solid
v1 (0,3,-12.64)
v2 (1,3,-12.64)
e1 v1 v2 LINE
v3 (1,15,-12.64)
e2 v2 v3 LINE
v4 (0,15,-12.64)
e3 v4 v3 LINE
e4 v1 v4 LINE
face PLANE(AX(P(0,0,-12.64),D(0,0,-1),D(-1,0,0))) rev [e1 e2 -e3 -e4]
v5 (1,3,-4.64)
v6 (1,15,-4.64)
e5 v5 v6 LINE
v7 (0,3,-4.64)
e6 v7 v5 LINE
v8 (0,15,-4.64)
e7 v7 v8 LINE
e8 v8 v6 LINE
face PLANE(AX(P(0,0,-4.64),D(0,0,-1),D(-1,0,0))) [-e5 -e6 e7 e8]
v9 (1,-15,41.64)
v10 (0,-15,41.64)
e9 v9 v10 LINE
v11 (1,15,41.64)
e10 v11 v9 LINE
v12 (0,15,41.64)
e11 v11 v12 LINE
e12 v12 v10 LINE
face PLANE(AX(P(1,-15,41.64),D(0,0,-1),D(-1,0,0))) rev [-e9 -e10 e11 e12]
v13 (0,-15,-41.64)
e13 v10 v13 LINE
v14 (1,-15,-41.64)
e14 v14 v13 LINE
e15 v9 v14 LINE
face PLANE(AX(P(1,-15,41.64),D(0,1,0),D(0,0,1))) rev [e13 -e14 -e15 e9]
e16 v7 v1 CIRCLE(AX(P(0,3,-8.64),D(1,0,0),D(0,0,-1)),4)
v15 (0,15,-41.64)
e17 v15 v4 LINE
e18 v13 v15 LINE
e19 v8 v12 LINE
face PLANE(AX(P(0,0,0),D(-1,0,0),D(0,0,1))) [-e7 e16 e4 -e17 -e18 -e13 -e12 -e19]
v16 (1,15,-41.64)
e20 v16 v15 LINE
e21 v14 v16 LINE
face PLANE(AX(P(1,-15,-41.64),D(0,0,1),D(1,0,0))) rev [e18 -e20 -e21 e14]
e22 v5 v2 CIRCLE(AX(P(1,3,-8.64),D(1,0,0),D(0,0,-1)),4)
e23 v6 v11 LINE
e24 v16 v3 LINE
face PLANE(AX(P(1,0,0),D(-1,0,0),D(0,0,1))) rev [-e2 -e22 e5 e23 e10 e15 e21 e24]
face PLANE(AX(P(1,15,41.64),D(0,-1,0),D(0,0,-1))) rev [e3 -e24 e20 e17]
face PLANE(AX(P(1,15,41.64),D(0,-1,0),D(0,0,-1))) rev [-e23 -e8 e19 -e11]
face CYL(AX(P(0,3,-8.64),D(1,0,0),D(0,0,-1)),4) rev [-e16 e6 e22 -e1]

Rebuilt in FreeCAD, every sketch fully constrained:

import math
import FreeCAD as App
import Part
import Sketcher
from FreeCAD import Vector
Q = App.Units.Quantity

doc = App.newDocument("Part")
body = doc.addObject("PartDesign::Body", "Body")

# Sketch on YZ plane
sketch1 = body.newObject("Sketcher::SketchObject", "Sketch")
sketch1.AttachmentSupport = (doc.getObject("YZ_Plane"), [""])
sketch1.MapMode = "FlatFace"
sketch1.addGeometry(Part.LineSegment(Vector(15, 42, 0), Vector(-15, 42, 0)), False)
sketch1.addGeometry(Part.LineSegment(Vector(-15, 42, 0), Vector(-15, -42, 0)), False)
sketch1.addGeometry(Part.LineSegment(Vector(-15, -42, 0), Vector(15, -42, 0)), False)
sketch1.addGeometry(Part.LineSegment(Vector(15, -42, 0), Vector(15, 42, 0)), False)
sketch1.addConstraint(Sketcher.Constraint("Coincident", 0, 2, 1, 1))
sketch1.addConstraint(Sketcher.Constraint("Coincident", 1, 2, 2, 1))
sketch1.addConstraint(Sketcher.Constraint("Coincident", 2, 2, 3, 1))
sketch1.addConstraint(Sketcher.Constraint("Coincident", 3, 2, 0, 1))
sketch1.addConstraint(Sketcher.Constraint("Horizontal", 0))
sketch1.addConstraint(Sketcher.Constraint("Vertical", 1))
sketch1.addConstraint(Sketcher.Constraint("Horizontal", 2))
sketch1.addConstraint(Sketcher.Constraint("Vertical", 3))
sketch1.addConstraint(Sketcher.Constraint("Symmetric", 0, 2, 2, 2, -1, 1))
sketch1.addConstraint(Sketcher.Constraint("DistanceX", 0, 2, 0, 1, Q("30 mm")))
sketch1.addConstraint(Sketcher.Constraint("DistanceY", 1, 2, 1, 1, Q("83.28 mm")))
pad1 = body.newObject("PartDesign::Pad", "Pad")
pad1.Profile = sketch1
pad1.Length = 1

# Sketch on YZ plane
sketch2 = body.newObject("Sketcher::SketchObject", "Sketch001")
sketch2.AttachmentSupport = (doc.getObject("YZ_Plane"), [""])
sketch2.MapMode = "FlatFace"
sketch2.AttachmentOffset = App.Placement(Vector(0, 0, 1), App.Rotation())
sketch2.addGeometry(Part.LineSegment(Vector(3, -12.6, 0), Vector(15, -12.6, 0)), False)
sketch2.addGeometry(Part.LineSegment(Vector(15, -12.6, 0), Vector(15, -4.6, 0)), False)
sketch2.addGeometry(Part.LineSegment(Vector(15, -4.6, 0), Vector(3, -4.6, 0)), False)
sketch2.addGeometry(Part.ArcOfCircle(Part.Circle(Vector(3, -8.6, 0), Vector(0, 0, 1), 4), math.radians(90), math.radians(270)), False)
sketch2.addConstraint(Sketcher.Constraint("Coincident", 0, 2, 1, 1))
sketch2.addConstraint(Sketcher.Constraint("Coincident", 1, 2, 2, 1))
sketch2.addConstraint(Sketcher.Constraint("Tangent", 2, 2, 3, 1))
sketch2.addConstraint(Sketcher.Constraint("Tangent", 3, 2, 0, 1))
sketch2.addConstraint(Sketcher.Constraint("Horizontal", 0))
sketch2.addConstraint(Sketcher.Constraint("Vertical", 1))
sketch2.addConstraint(Sketcher.Constraint("Horizontal", 2))
sketch2.addConstraint(Sketcher.Constraint("Radius", 3, Q("4 mm")))
sketch2.addConstraint(Sketcher.Constraint("DistanceX", 0, 1, 0, 2, Q("12 mm")))
sketch2.addConstraint(Sketcher.Constraint("DistanceX", -1, 1, 3, 3, Q("3 mm")))
sketch2.addConstraint(Sketcher.Constraint("DistanceY", 3, 3, -1, 1, Q("8.64 mm")))
pocket1 = body.newObject("PartDesign::Pocket", "Pocket")
pocket1.Profile = sketch2
pocket1.Type = "ThroughAll"

doc.recompute()
